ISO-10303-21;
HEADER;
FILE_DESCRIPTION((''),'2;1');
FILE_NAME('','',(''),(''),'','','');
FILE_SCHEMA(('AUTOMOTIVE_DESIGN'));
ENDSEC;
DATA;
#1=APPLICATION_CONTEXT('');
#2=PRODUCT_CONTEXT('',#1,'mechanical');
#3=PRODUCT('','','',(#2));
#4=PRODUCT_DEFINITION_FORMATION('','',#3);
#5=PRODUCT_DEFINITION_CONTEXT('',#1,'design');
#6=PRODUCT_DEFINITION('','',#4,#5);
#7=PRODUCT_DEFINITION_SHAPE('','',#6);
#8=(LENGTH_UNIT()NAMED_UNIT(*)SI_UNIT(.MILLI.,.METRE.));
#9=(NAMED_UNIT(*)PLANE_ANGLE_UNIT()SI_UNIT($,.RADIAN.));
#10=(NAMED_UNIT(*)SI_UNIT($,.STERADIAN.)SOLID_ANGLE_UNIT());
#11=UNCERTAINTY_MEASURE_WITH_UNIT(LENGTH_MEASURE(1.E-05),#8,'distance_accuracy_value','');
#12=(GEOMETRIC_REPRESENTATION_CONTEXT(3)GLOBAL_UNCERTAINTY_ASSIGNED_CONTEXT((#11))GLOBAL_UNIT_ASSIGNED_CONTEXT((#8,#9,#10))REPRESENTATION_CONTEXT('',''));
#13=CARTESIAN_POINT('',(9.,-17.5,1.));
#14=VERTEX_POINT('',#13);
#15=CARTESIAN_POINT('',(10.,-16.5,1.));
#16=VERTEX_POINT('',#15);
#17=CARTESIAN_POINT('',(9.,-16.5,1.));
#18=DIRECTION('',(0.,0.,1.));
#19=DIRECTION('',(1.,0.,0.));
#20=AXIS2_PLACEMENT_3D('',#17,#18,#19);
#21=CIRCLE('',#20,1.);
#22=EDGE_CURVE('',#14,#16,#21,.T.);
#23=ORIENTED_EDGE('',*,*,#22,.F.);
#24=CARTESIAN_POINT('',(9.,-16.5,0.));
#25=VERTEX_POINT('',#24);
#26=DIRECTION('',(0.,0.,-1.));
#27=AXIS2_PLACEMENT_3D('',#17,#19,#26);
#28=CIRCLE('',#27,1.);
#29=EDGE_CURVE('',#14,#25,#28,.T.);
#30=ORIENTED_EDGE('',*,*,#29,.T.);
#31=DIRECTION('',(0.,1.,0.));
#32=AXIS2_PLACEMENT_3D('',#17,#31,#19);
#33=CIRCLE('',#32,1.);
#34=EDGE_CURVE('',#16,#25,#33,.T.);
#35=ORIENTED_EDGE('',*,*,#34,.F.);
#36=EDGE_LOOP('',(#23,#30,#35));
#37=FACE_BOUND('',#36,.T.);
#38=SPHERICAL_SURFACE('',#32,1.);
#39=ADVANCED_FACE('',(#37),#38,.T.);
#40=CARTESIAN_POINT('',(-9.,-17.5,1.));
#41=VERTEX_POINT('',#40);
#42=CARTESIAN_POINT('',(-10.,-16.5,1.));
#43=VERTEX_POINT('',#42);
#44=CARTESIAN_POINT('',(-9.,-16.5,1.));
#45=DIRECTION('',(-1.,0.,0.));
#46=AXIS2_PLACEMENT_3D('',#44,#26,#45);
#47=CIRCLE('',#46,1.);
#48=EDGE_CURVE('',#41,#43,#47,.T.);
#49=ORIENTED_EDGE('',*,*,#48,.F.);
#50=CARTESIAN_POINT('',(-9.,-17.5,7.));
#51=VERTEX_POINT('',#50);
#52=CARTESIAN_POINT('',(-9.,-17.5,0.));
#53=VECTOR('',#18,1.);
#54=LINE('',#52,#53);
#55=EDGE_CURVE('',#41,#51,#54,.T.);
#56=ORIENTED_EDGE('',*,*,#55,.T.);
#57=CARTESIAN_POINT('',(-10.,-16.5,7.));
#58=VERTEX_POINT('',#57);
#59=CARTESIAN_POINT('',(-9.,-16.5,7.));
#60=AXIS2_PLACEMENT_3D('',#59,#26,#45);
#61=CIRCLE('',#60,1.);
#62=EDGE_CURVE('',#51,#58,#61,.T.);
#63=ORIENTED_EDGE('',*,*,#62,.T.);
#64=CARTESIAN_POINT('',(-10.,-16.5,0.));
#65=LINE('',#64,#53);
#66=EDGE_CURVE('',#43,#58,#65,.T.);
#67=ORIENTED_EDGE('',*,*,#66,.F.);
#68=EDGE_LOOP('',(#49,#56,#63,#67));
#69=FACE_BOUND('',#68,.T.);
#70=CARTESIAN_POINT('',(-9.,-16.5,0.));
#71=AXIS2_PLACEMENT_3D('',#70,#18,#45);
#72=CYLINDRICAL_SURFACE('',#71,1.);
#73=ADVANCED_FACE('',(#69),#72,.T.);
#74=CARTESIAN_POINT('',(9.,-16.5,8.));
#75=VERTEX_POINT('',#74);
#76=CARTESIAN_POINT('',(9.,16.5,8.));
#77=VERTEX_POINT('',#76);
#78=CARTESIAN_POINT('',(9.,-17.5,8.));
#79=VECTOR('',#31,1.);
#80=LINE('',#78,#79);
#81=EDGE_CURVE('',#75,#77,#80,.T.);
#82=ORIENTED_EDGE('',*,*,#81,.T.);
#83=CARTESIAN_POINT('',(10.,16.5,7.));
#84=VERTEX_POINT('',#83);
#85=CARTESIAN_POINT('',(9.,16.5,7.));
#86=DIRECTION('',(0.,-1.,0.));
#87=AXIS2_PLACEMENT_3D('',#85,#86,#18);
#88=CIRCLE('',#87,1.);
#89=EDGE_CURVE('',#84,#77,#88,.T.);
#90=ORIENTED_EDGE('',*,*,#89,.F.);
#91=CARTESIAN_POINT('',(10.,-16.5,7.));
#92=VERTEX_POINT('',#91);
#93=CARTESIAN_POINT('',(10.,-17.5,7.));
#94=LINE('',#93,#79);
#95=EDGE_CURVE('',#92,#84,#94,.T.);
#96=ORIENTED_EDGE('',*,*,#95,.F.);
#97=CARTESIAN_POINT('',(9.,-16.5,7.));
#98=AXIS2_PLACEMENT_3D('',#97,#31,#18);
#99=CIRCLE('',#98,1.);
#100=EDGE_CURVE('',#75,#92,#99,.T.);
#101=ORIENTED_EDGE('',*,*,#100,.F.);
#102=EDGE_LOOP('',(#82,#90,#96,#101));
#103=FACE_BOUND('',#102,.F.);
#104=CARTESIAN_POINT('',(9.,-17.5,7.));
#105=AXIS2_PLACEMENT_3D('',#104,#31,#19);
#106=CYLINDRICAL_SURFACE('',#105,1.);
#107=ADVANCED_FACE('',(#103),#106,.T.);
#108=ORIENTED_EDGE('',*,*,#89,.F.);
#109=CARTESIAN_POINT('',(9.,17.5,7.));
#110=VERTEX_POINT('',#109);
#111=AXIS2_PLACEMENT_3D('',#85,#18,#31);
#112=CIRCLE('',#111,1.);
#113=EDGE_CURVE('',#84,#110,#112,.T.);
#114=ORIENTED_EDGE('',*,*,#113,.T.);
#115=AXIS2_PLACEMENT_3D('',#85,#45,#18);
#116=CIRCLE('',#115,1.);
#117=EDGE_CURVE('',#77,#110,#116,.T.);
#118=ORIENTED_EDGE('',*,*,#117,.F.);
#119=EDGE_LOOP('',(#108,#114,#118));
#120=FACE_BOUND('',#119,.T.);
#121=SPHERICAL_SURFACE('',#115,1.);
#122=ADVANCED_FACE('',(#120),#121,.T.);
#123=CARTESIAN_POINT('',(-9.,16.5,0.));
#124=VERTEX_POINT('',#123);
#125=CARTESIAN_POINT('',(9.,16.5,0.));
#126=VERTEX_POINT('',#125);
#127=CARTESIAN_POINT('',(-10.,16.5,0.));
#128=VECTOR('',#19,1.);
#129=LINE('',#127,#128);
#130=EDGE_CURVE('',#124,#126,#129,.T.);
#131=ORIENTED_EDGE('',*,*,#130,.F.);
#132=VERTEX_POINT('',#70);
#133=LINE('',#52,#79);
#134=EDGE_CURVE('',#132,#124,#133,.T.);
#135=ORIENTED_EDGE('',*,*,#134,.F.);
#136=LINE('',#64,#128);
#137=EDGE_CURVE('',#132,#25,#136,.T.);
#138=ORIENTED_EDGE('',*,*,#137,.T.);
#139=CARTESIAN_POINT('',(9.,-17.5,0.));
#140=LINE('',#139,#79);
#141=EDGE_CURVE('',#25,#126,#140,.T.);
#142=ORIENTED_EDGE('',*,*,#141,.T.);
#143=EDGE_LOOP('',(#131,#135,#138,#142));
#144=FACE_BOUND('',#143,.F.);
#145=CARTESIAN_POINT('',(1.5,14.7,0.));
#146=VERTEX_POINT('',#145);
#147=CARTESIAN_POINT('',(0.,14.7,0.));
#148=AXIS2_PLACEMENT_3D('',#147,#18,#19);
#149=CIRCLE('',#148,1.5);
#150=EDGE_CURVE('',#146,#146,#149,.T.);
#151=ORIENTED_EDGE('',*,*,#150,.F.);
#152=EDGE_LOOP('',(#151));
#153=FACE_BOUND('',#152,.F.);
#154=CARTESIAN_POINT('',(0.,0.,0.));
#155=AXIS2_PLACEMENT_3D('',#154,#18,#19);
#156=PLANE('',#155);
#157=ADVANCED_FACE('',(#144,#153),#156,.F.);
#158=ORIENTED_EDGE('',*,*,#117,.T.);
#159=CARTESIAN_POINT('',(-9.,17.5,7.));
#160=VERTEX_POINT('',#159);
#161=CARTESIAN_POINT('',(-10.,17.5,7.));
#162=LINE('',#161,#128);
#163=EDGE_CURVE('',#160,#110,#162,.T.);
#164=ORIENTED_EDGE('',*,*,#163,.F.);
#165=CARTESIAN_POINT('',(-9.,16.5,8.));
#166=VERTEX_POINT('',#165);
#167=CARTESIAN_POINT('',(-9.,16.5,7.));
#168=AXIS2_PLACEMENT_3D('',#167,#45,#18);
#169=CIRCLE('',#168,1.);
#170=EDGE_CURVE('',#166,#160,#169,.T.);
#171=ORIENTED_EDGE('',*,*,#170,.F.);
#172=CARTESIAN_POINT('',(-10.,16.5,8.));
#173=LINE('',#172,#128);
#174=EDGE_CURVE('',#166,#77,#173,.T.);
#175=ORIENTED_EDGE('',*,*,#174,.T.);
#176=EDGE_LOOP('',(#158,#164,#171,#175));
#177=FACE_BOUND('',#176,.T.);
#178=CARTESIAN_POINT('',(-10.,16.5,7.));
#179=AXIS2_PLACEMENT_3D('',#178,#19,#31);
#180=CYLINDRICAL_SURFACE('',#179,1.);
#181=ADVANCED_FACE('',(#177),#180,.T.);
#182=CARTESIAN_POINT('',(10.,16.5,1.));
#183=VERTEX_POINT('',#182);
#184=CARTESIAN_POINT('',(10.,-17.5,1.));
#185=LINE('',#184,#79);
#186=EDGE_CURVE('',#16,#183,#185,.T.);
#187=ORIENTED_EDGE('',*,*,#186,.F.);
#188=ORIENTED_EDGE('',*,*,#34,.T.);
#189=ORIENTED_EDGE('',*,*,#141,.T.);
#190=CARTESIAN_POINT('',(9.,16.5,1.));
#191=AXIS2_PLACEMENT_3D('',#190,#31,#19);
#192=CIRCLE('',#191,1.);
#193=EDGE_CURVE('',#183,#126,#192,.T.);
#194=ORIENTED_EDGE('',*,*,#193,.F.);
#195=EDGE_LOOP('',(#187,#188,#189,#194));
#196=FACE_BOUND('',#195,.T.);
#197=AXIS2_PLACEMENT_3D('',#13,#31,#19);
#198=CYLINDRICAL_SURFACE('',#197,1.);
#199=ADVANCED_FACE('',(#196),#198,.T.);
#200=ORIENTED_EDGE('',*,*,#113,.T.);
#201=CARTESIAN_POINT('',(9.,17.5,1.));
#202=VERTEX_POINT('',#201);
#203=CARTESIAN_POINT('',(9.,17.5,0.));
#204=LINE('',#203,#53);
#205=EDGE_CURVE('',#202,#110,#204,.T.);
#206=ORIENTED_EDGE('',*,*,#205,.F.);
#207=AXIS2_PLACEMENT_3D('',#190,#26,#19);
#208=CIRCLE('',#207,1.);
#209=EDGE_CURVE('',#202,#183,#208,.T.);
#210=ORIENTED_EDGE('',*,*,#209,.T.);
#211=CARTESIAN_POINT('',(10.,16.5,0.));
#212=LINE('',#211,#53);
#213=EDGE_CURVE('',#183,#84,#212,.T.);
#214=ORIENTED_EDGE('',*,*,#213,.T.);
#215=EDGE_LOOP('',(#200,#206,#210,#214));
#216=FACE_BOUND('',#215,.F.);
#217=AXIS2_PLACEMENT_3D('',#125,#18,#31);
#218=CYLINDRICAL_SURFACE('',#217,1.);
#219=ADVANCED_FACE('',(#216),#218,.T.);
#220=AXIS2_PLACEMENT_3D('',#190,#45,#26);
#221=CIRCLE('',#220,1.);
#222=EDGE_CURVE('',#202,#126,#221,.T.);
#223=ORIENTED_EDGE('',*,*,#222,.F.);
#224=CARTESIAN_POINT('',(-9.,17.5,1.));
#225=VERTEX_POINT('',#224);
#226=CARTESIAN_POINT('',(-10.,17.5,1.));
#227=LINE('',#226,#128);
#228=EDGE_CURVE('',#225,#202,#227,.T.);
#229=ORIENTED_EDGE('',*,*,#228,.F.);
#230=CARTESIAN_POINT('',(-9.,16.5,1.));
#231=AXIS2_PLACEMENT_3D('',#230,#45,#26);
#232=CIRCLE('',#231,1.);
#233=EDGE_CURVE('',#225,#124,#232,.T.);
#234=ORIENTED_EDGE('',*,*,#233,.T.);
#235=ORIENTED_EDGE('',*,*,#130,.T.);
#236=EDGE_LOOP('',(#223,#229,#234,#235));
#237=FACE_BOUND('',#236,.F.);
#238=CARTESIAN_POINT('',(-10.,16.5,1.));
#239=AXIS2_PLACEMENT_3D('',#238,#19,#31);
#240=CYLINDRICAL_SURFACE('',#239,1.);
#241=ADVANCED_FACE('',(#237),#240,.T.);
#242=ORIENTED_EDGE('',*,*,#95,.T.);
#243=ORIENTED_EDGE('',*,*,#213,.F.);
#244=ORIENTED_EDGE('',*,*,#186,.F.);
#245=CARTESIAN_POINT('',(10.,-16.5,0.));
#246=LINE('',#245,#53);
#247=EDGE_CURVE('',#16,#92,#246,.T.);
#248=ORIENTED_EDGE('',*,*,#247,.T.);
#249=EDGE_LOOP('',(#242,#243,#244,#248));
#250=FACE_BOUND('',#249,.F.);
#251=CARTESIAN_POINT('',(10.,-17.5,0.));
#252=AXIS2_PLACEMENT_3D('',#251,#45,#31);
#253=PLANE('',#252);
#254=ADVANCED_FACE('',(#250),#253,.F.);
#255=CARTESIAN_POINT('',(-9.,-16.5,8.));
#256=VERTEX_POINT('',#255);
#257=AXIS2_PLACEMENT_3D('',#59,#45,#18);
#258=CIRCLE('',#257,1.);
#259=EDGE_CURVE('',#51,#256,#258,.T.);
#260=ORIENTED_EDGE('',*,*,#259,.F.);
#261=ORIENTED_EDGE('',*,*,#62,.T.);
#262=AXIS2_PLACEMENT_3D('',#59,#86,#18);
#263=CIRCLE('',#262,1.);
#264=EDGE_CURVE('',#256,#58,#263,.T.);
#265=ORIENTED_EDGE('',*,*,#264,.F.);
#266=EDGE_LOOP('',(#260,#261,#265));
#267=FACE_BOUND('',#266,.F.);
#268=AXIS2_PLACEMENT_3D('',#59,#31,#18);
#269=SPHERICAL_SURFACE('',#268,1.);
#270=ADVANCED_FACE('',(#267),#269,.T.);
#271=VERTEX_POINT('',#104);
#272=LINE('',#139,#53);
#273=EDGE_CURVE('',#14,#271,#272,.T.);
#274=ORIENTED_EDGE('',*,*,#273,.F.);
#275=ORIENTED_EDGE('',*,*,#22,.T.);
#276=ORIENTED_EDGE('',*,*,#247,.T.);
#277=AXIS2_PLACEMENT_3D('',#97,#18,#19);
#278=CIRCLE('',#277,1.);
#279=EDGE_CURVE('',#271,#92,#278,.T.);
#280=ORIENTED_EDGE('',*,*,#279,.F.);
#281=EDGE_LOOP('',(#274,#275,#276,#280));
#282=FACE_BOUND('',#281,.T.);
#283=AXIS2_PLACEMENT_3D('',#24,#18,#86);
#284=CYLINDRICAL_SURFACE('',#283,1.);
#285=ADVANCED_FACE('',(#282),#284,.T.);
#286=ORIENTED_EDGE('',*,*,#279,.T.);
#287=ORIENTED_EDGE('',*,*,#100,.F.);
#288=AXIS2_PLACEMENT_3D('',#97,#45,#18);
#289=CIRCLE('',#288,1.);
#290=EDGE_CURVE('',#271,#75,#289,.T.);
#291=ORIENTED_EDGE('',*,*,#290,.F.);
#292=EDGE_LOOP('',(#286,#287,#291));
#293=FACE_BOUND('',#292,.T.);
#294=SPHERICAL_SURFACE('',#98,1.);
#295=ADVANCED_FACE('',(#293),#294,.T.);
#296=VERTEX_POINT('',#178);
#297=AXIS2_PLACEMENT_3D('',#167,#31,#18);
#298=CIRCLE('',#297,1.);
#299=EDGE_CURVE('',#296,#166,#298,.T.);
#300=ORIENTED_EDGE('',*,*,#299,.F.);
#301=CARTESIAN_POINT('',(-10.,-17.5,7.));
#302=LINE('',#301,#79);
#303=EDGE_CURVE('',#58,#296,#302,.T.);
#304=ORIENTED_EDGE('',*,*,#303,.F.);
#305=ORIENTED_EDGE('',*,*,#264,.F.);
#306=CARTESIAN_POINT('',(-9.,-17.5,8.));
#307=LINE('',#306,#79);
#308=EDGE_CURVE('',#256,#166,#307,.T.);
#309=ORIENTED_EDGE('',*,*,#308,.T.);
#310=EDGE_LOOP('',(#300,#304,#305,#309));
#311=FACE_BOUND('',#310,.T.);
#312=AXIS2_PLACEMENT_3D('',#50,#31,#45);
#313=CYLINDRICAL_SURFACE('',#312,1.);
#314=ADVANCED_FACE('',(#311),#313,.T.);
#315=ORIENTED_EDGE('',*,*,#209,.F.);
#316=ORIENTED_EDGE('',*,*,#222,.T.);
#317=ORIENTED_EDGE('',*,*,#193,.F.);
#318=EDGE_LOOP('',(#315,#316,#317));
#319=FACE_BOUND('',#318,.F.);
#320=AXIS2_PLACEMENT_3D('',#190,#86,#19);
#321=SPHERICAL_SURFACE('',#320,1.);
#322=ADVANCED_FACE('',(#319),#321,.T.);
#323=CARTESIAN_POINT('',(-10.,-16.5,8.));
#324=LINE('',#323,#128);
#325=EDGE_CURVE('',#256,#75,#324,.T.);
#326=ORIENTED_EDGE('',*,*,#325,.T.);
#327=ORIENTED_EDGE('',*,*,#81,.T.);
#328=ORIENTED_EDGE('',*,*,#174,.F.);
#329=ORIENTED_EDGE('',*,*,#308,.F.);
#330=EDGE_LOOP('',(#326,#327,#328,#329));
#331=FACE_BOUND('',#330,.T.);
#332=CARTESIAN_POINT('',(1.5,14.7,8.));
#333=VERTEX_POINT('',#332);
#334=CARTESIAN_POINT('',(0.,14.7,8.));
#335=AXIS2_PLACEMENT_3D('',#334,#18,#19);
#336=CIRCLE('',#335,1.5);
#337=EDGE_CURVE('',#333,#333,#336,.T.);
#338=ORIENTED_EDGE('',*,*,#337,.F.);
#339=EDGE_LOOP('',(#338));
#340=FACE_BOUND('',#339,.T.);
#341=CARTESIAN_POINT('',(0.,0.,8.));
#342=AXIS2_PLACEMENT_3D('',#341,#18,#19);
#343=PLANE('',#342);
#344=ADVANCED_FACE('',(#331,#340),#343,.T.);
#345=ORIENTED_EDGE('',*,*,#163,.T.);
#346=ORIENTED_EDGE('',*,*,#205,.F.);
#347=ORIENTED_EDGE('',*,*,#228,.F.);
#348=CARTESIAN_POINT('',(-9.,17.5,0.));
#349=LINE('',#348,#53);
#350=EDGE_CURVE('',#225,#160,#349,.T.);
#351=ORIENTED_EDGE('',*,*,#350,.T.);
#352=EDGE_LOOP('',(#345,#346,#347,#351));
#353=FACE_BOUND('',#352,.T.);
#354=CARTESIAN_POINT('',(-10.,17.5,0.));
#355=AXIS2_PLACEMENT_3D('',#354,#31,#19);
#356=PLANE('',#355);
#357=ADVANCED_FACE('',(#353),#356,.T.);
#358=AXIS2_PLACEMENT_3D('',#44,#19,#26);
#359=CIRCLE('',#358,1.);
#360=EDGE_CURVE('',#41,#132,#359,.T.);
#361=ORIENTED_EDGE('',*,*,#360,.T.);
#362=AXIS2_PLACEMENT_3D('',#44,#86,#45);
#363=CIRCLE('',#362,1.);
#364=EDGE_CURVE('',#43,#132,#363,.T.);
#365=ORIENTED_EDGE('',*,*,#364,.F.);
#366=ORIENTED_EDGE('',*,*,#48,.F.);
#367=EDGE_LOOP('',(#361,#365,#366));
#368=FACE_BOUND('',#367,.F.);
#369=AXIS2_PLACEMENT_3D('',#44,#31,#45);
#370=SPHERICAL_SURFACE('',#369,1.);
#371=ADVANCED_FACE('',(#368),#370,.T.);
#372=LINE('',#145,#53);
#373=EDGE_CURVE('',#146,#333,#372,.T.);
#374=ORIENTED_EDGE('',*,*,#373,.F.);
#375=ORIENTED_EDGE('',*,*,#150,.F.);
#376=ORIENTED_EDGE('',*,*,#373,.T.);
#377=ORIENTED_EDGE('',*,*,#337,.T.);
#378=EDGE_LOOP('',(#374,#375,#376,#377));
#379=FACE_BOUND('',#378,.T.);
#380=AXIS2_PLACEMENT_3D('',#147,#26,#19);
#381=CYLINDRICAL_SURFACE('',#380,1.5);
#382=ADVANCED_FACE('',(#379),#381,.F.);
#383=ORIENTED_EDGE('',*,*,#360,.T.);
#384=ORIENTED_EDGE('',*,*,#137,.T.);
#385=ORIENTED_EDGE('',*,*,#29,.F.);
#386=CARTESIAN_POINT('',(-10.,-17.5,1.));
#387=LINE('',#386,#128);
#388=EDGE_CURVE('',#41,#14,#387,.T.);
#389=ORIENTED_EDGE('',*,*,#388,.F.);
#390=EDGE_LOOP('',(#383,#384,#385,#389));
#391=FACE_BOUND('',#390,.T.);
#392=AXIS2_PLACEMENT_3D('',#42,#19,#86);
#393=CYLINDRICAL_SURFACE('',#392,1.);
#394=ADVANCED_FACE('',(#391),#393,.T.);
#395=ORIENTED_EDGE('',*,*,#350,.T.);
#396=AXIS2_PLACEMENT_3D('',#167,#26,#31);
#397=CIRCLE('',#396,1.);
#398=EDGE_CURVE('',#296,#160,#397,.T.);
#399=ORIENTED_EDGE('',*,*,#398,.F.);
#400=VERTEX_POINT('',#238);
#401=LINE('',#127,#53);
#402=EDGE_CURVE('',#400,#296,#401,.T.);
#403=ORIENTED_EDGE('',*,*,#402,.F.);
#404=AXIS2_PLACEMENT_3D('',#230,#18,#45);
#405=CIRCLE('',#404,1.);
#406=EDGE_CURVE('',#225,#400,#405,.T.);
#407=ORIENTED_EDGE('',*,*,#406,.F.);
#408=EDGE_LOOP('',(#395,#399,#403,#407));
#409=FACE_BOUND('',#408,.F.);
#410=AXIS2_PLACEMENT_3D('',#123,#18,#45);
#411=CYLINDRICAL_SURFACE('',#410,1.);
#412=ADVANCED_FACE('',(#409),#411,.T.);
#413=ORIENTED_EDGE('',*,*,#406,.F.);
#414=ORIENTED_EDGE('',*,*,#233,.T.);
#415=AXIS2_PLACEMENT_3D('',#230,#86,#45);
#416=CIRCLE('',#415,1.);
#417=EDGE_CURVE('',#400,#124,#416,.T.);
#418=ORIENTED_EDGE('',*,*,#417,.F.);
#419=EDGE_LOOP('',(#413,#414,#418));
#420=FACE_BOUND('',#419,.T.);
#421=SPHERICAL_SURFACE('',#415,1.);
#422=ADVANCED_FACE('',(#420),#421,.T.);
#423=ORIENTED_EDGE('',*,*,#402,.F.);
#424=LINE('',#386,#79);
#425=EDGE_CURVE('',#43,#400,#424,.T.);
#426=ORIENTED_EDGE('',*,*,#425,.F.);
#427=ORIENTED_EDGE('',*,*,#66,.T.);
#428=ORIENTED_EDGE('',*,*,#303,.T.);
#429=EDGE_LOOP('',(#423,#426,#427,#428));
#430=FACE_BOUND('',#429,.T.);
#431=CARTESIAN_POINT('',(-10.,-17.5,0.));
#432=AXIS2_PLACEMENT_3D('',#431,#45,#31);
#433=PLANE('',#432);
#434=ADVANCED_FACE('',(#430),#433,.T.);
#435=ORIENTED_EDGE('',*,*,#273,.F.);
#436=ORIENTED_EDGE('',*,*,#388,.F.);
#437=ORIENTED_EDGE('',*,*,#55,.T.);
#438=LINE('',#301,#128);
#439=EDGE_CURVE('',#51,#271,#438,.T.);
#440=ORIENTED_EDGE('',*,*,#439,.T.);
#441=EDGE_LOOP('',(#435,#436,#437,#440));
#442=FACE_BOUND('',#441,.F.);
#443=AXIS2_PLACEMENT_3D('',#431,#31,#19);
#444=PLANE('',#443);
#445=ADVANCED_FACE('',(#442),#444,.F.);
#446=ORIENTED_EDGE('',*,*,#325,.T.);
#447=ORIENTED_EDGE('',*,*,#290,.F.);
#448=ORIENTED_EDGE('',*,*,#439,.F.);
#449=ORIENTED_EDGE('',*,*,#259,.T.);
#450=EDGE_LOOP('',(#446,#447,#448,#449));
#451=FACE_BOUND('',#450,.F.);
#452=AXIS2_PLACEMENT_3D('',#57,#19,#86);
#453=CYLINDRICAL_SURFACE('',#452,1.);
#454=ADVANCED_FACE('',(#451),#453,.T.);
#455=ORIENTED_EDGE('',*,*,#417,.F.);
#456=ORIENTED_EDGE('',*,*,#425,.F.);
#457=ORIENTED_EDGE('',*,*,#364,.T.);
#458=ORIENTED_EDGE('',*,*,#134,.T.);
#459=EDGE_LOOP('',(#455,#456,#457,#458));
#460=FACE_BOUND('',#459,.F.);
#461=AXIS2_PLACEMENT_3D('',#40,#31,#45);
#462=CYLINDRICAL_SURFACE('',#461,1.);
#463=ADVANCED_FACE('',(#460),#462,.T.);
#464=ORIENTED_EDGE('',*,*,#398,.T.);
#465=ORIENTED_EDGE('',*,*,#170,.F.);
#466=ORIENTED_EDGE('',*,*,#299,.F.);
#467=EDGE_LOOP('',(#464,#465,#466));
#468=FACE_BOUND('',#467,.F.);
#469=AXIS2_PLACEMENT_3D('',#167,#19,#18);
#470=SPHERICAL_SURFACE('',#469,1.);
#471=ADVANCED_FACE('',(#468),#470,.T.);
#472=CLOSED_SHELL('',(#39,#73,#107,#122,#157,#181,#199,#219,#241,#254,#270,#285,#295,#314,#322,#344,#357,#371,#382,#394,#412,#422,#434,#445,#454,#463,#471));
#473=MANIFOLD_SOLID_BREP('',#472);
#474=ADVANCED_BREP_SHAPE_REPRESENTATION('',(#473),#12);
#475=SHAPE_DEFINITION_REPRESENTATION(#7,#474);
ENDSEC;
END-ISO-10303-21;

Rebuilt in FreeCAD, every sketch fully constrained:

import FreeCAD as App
import Part
import Sketcher

V = App.Vector


def edges_at(feature, points):
    """Names of the edges that pass closest to the given points."""
    edges = feature.Shape.Edges
    near = lambda p: min(range(len(edges)), key=lambda i: edges[i].distToShape(Part.Vertex(*p))[0])
    return sorted({f"Edge{near(p) + 1}" for p in points})

doc = App.newDocument("Part")
body = doc.addObject("PartDesign::Body", "Body")

# Sketch on XY plane
sketch1 = body.newObject("Sketcher::SketchObject", "Sketch")
sketch1.AttachmentSupport = (doc.getObject("XY_Plane"), [""])
sketch1.MapMode = "FlatFace"
sketch1.addGeometry(Part.LineSegment(V(-10, 17.5, 0), V(-10, -17.5, 0)), False)
sketch1.addGeometry(Part.LineSegment(V(-10, -17.5, 0), V(10, -17.5, 0)), False)
sketch1.addGeometry(Part.LineSegment(V(10, -17.5, 0), V(10, 17.5, 0)), False)
sketch1.addGeometry(Part.LineSegment(V(10, 17.5, 0), V(-10, 17.5, 0)), False)
sketch1.addGeometry(Part.Circle(V(0, 14.7, 0), V(0, 0, 1), 1.5), False)
sketch1.addConstraint(Sketcher.Constraint("Coincident", 0, 2, 1, 1))
sketch1.addConstraint(Sketcher.Constraint("Coincident", 1, 2, 2, 1))
sketch1.addConstraint(Sketcher.Constraint("Coincident", 2, 2, 3, 1))
sketch1.addConstraint(Sketcher.Constraint("Coincident", 3, 2, 0, 1))
sketch1.addConstraint(Sketcher.Constraint("Vertical", 0))
sketch1.addConstraint(Sketcher.Constraint("Horizontal", 1))
sketch1.addConstraint(Sketcher.Constraint("Vertical", 2))
sketch1.addConstraint(Sketcher.Constraint("Horizontal", 3))
sketch1.addConstraint(Sketcher.Constraint("Symmetric", 0, 2, 2, 2, -1, 1))
sketch1.addConstraint(Sketcher.Constraint("PointOnObject", 4, 3, -2))
sketch1.addConstraint(Sketcher.Constraint("Diameter", 4, 3.0))
sketch1.addConstraint(Sketcher.Constraint("DistanceX", 1, 1, 1, 2, 20.0))
sketch1.addConstraint(Sketcher.Constraint("DistanceY", 0, 2, 0, 1, 35.0))
sketch1.addConstraint(Sketcher.Constraint("DistanceY", -1, 1, 4, 3, 14.7))
pad1 = body.newObject("PartDesign::Pad", "Pad")
pad1.Profile = sketch1
pad1.Length = 8
doc.recompute()

fillet = body.newObject("PartDesign::Fillet", "Fillet")
fillet.Base = (pad1, edges_at(pad1, [
    (0, 17.5, 8),
    (10, 0, 8),
    (-10, 0, 8),
    (0, -17.5, 8),
    (-10, 0, 0),
    (-10, 17.5, 4),
    (-10, -17.5, 4),
    (10, 0, 0),
    (10, 17.5, 4),
    (10, -17.5, 4),
    (0, -17.5, 0),
    (0, 17.5, 0),
]))
fillet.Radius = 1

doc.recompute()
